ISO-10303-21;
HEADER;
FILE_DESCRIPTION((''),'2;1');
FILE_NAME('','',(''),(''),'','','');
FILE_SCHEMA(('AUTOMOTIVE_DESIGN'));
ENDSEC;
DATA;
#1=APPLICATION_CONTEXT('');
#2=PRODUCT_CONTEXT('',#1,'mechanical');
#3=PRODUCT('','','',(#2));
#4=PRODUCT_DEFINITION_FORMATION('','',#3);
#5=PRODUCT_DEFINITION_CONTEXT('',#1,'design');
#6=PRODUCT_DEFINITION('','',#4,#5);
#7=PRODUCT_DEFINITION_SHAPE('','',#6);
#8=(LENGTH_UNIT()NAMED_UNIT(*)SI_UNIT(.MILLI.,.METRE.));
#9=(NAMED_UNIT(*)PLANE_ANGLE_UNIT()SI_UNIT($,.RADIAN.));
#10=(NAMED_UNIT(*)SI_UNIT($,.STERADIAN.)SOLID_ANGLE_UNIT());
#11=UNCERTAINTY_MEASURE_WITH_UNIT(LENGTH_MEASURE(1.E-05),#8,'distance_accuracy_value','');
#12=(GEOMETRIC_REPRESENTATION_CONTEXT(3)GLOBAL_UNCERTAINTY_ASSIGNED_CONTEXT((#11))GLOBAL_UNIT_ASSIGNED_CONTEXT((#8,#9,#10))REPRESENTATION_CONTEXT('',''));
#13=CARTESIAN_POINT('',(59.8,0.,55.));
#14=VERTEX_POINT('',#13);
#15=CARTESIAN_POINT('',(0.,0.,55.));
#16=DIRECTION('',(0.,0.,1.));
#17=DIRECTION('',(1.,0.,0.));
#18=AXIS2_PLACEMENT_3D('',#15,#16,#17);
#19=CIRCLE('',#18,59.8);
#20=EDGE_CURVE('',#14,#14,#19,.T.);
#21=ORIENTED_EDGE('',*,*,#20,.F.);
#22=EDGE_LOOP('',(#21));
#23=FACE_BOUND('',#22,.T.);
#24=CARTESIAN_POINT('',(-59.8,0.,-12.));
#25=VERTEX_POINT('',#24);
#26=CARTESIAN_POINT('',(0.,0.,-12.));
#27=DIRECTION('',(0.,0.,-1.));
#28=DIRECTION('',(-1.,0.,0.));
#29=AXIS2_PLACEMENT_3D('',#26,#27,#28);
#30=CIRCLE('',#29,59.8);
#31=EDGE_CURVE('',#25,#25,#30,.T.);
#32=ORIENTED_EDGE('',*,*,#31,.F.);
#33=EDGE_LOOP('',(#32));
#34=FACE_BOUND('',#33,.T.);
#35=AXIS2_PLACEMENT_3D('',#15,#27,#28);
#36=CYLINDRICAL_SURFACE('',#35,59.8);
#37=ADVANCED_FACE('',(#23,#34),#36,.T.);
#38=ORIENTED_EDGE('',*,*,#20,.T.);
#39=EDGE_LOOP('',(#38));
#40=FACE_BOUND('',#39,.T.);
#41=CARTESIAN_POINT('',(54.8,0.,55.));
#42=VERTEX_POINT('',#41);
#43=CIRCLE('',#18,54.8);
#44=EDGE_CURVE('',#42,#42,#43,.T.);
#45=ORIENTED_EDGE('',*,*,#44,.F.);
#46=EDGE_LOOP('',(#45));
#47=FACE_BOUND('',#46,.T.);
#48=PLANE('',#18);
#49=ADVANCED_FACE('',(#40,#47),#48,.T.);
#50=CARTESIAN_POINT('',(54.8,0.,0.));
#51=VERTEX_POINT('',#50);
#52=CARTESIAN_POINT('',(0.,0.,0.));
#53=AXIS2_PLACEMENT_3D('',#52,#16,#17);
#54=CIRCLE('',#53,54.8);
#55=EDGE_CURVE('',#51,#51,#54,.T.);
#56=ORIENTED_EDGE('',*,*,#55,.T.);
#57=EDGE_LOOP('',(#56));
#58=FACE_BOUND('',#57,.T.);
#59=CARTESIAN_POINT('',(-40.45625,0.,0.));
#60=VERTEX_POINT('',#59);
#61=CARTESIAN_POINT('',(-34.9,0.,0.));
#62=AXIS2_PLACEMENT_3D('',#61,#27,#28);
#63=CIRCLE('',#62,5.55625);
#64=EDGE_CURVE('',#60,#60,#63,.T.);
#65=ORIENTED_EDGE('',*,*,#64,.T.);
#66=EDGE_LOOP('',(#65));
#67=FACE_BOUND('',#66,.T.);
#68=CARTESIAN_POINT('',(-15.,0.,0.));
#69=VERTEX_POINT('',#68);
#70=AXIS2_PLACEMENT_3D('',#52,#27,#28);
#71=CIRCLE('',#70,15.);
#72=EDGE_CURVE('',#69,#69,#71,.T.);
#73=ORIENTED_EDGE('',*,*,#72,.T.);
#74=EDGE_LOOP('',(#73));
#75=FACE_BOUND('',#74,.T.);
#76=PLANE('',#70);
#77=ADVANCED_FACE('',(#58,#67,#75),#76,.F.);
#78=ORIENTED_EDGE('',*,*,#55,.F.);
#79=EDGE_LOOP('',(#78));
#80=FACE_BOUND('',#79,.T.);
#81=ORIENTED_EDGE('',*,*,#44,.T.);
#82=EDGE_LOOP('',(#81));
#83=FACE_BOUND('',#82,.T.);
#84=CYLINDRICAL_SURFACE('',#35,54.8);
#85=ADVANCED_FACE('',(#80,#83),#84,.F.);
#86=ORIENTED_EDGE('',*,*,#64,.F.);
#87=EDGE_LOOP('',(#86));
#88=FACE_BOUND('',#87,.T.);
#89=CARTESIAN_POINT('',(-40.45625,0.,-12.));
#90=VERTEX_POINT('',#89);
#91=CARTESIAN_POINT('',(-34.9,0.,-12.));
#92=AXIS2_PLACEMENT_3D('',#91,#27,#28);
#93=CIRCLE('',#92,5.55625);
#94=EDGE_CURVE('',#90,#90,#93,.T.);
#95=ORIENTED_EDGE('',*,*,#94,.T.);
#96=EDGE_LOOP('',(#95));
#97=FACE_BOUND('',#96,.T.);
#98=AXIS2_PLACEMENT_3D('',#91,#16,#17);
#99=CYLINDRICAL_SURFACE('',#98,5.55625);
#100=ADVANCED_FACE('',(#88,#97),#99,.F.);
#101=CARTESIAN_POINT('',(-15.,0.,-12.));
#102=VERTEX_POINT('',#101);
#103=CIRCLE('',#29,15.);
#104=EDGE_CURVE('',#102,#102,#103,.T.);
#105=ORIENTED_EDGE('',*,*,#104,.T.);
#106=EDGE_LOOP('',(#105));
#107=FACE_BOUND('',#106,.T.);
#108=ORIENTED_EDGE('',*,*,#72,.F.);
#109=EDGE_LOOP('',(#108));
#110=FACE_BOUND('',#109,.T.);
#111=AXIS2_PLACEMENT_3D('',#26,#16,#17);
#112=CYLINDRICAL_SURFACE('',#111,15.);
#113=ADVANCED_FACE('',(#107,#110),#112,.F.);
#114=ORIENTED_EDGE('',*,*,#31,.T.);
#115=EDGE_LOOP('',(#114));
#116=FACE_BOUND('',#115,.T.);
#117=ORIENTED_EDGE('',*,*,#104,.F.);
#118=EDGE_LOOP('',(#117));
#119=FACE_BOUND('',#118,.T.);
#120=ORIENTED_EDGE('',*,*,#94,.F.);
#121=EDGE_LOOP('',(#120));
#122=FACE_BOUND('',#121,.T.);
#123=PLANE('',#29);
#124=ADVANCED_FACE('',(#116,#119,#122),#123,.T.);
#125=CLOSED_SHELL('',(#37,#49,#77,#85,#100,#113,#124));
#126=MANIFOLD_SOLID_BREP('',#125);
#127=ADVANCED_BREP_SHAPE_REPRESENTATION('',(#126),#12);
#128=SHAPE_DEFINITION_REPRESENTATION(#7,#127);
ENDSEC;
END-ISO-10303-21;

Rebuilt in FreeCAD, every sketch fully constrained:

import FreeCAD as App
import Part
import Sketcher
Q = App.Units.Quantity

doc = App.newDocument("Part")
body = doc.addObject("PartDesign::Body", "Body")

sketch1 = doc.addObject("Sketcher::SketchObject", "Sketch")
body.addObject(sketch1)
sketch1.AttachmentSupport = (doc.XY_Plane, [""])
sketch1.MapMode = "FlatFace"
sketch1.addGeometry(Part.Circle(App.Vector(0, 0, 0), App.Vector(0, 0, 1), 60), False)
sketch1.addGeometry(Part.Circle(App.Vector(0, 0, 0), App.Vector(0, 0, 1), 55), False)
sketch1.addConstraint(Sketcher.Constraint("Coincident", 0, 3, -1, 1))
sketch1.addConstraint(Sketcher.Constraint("Coincident", 1, 3, -1, 1))
sketch1.addConstraint(Sketcher.Constraint("Diameter", 0, Q("119.6 mm")))
sketch1.addConstraint(Sketcher.Constraint("Diameter", 1, Q("109.6 mm")))
pad1 = doc.addObject("PartDesign::Pad", "Pad")
body.addObject(pad1)
pad1.Profile = sketch1
pad1.Length = 55

sketch2 = doc.addObject("Sketcher::SketchObject", "Sketch001")
body.addObject(sketch2)
sketch2.AttachmentSupport = (doc.XY_Plane, [""])
sketch2.MapMode = "FlatFace"
sketch2.AttachmentOffset = App.Placement(App.Vector(0, 0, -12), App.Rotation())
sketch2.addGeometry(Part.Circle(App.Vector(0, 0, 0), App.Vector(0, 0, 1), 60), False)
sketch2.addGeometry(Part.Circle(App.Vector(0, 0, 0), App.Vector(0, 0, 1), 15), False)
sketch2.addGeometry(Part.Circle(App.Vector(-35, 0, 0), App.Vector(0, 0, 1), 6), False)
sketch2.addConstraint(Sketcher.Constraint("Coincident", 0, 3, -1, 1))
sketch2.addConstraint(Sketcher.Constraint("Coincident", 1, 3, -1, 1))
sketch2.addConstraint(Sketcher.Constraint("PointOnObject", 2, 3, -1))
sketch2.addConstraint(Sketcher.Constraint("Diameter", 1, Q("30 mm")))
sketch2.addConstraint(Sketcher.Constraint("Diameter", 0, Q("119.6 mm")))
sketch2.addConstraint(Sketcher.Constraint("Diameter", 2, Q("11.1125 mm")))
sketch2.addConstraint(Sketcher.Constraint("DistanceX", 2, 3, -1, 1, Q("34.9 mm")))
pad2 = doc.addObject("PartDesign::Pad", "Pad001")
body.addObject(pad2)
pad2.Profile = sketch2
pad2.Length = 12

doc.recompute()
